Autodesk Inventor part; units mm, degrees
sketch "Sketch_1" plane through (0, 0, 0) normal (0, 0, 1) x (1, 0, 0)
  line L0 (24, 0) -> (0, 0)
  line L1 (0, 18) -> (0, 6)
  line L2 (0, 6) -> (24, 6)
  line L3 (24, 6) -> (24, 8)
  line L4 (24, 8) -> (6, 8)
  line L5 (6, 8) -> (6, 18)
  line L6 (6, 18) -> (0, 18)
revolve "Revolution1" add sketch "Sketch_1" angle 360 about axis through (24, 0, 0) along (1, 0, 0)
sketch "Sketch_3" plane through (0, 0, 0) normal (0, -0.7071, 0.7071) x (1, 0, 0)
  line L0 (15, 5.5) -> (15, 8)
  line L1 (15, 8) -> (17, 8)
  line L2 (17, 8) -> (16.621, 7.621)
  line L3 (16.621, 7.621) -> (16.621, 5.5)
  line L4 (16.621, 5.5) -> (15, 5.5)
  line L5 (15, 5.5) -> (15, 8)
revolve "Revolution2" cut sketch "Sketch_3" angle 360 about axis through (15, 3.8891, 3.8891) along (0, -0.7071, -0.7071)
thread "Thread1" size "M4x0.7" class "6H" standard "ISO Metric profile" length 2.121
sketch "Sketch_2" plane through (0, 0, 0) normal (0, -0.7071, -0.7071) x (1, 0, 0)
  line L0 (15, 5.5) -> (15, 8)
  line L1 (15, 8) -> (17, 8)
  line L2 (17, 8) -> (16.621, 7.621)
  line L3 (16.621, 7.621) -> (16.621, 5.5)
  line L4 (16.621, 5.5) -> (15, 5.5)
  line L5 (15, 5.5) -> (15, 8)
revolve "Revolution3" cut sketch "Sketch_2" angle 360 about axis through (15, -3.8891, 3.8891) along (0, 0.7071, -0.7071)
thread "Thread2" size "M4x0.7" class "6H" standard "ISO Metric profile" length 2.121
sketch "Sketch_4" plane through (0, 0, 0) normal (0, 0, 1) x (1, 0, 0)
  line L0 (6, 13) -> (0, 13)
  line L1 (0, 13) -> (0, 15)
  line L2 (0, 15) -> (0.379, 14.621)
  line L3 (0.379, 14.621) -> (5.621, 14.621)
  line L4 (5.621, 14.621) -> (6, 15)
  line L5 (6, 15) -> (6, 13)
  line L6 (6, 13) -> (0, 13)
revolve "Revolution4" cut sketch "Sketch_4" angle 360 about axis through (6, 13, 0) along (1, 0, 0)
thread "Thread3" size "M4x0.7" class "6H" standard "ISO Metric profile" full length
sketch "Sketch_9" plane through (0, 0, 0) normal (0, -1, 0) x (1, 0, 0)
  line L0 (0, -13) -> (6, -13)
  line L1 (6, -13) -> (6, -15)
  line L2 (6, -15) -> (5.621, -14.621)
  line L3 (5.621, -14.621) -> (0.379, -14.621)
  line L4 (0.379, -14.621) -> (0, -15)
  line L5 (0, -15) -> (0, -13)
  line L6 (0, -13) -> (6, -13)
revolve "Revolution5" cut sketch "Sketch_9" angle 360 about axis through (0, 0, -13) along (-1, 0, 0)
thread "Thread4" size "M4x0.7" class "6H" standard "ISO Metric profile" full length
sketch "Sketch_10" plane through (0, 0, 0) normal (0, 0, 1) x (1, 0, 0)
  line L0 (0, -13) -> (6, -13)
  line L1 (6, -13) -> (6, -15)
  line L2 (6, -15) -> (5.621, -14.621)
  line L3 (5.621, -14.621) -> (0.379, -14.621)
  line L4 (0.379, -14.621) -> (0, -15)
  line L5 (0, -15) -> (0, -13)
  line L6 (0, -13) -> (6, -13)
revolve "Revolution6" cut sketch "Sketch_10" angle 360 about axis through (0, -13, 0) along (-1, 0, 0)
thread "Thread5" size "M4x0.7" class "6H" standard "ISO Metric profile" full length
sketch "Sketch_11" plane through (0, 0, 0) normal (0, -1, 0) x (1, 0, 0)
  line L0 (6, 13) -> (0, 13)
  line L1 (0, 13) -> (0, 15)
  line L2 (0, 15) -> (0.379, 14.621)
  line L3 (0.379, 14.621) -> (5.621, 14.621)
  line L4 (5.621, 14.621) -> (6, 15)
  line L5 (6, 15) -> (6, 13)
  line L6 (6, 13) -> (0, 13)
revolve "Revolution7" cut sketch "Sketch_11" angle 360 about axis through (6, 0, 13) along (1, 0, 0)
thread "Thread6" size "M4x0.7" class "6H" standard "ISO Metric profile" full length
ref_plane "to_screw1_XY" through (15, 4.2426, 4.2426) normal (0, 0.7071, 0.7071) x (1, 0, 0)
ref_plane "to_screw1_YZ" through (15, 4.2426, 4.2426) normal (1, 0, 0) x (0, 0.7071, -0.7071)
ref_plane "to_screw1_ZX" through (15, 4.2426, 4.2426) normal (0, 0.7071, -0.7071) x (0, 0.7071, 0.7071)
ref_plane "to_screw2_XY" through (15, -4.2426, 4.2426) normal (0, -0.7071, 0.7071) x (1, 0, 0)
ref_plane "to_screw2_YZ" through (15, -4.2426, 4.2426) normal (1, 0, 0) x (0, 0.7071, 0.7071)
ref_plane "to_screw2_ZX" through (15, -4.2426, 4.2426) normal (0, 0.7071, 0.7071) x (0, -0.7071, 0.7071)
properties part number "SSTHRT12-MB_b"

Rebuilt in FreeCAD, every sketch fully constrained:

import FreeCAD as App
import Part
import Sketcher

V = App.Vector
Q = App.Units.Quantity


def add_polygon(sketch, points):
    """Adds a closed chain of lines whose ends are joined by coincident constraints."""
    first, n = sketch.GeometryCount, len(points)
    for a, b in zip(points, points[1:] + points[:1]):
        sketch.addGeometry(Part.LineSegment(App.Vector(*a, 0), App.Vector(*b, 0)), False)
    for i in range(n):
        sketch.addConstraint(Sketcher.Constraint("Coincident", first + i, 2, first + (i + 1) % n, 1))

doc = App.newDocument("Part")
body = doc.addObject("PartDesign::Body", "Body")

# Sketch on XY plane
sketch1 = body.newObject("Sketcher::SketchObject", "Sketch")
sketch1.AttachmentSupport = (doc.getObject("XY_Plane"), [""])
sketch1.MapMode = "FlatFace"
add_polygon(sketch1, [(6, 18), (0, 18), (0, 6), (24, 6), (24, 8), (6, 8)])  # lines 0-5
sketch1.addConstraint([
    Sketcher.Constraint("Horizontal", 0),
    Sketcher.Constraint("Vertical", 1),
    Sketcher.Constraint("Horizontal", 2),
    Sketcher.Constraint("Vertical", 3),
    Sketcher.Constraint("Horizontal", 4),
    Sketcher.Constraint("Vertical", 5),
    Sketcher.Constraint("PointOnObject", 0, 2, -2),
    Sketcher.Constraint("DistanceX", 0, 2, 0, 1, 6.0),
    Sketcher.Constraint("DistanceX", 2, 1, 2, 2, 24.0),
    Sketcher.Constraint("DistanceY", 1, 2, 1, 1, 12.0),
    Sketcher.Constraint("DistanceY", 3, 1, 3, 2, 2.0),
    Sketcher.Constraint("DistanceY", -1, 1, 0, 2, 18.0),
])
revolution = body.newObject("PartDesign::Revolution", "Revolution")
revolution.Profile = sketch1
revolution.ReferenceAxis = (sketch1, ["H_Axis"])
revolution.Angle = 360

# Sketch on an angled plane
sketch2 = body.newObject("Sketcher::SketchObject", "Sketch001")
sketch2.Placement = App.Placement(V(0, 0, 0), App.Rotation(V(1, 0, 0), V(0, 0.707106781, 0.707106781), V(0, -0.707106781, 0.707106781), "ZXY"))
add_polygon(sketch2, [(15, 8), (15, 5.5), (16.621, 5.5), (16.621, 7.621), (17, 8)])  # lines 0-4
sketch2.addGeometry(Part.LineSegment(V(15, 8, 0), V(15, 5.5, 0)), True)  # axis
sketch2.addConstraint([
    Sketcher.Constraint("Vertical", 0),
    Sketcher.Constraint("Horizontal", 1),
    Sketcher.Constraint("Vertical", 2),
    Sketcher.Constraint("Horizontal", 4),
    Sketcher.Constraint("Vertical", 5),
    Sketcher.Constraint("Coincident", 5, 1, 4, 2),
    Sketcher.Constraint("Horizontal", 1, 2, 5, 2),
    Sketcher.Constraint("DistanceX", 4, 2, 4, 1, 2.0),
    Sketcher.Constraint("Angle", 3, Q("45 deg")),
    Sketcher.Constraint("DistanceY", 0, 2, 0, 1, 2.5),
    Sketcher.Constraint("DistanceX", -1, 1, 0, 2, 15.0),
    Sketcher.Constraint("DistanceY", -1, 1, 3, 2, 8.0),
    Sketcher.Constraint("DistanceX", 1, 1, 1, 2, 1.621),
])
groove = body.newObject("PartDesign::Groove", "Groove")
groove.Profile = sketch2
groove.ReferenceAxis = (sketch2, ["Axis0"])
groove.Angle = 360

# Sketch on an angled plane
sketch3 = body.newObject("Sketcher::SketchObject", "Sketch002")
sketch3.Placement = App.Placement(V(0, 0, 0), App.Rotation(V(1, 0, 0), V(0, -0.707106781, 0.707106781), V(0, -0.707106781, -0.707106781), "ZXY"))
add_polygon(sketch3, [(15, 8), (15, 5.5), (16.621, 5.5), (16.621, 7.621), (17, 8)])  # lines 0-4
sketch3.addGeometry(Part.LineSegment(V(15, 8, 0), V(15, 5.5, 0)), True)  # axis
sketch3.addConstraint([
    Sketcher.Constraint("Vertical", 0),
    Sketcher.Constraint("Horizontal", 1),
    Sketcher.Constraint("Vertical", 2),
    Sketcher.Constraint("Horizontal", 4),
    Sketcher.Constraint("Vertical", 5),
    Sketcher.Constraint("Coincident", 5, 1, 4, 2),
    Sketcher.Constraint("Horizontal", 1, 2, 5, 2),
    Sketcher.Constraint("DistanceX", 4, 2, 4, 1, 2.0),
    Sketcher.Constraint("Angle", 3, Q("45 deg")),
    Sketcher.Constraint("DistanceY", 0, 2, 0, 1, 2.5),
    Sketcher.Constraint("DistanceX", -1, 1, 0, 2, 15.0),
    Sketcher.Constraint("DistanceY", -1, 1, 3, 2, 8.0),
    Sketcher.Constraint("DistanceX", 1, 1, 1, 2, 1.621),
])
groove2 = body.newObject("PartDesign::Groove", "Groove001")
groove2.Profile = sketch3
groove2.ReferenceAxis = (sketch3, ["Axis0"])
groove2.Angle = 360

# Sketch on XY plane
sketch4 = body.newObject("Sketcher::SketchObject", "Sketch003")
sketch4.AttachmentSupport = (doc.getObject("XY_Plane"), [""])
sketch4.MapMode = "FlatFace"
add_polygon(sketch4, [(0, 13), (6, 13), (6, 15), (5.621, 14.621), (0.379, 14.621), (0, 15)])  # lines 0-5
sketch4.addGeometry(Part.LineSegment(V(0, 13, 0), V(6, 13, 0)), True)  # axis
sketch4.addConstraint([
    Sketcher.Constraint("Horizontal", 0),
    Sketcher.Constraint("Vertical", 1),
    Sketcher.Constraint("Horizontal", 3),
    Sketcher.Constraint("Vertical", 5),
    Sketcher.Constraint("Horizontal", 6),
    Sketcher.Constraint("Coincident", 6, 1, 5, 2),
    Sketcher.Constraint("PointOnObject", 4, 2, -2),
    Sketcher.Constraint("Perpendicular", 2, 4),
    Sketcher.Constraint("Horizontal", 1, 2, 4, 2),
    Sketcher.Constraint("Vertical", 1, 2, 6, 2),
    Sketcher.Constraint("Equal", 2, 4),
    Sketcher.Constraint("DistanceX", 0, 1, 0, 2, 6.0),
    Sketcher.Constraint("DistanceY", 1, 1, 1, 2, 2.0),
    Sketcher.Constraint("DistanceY", -1, 1, 0, 2, 13.0),
    Sketcher.Constraint("DistanceX", 3, 2, 3, 1, 5.242),
])
groove3 = body.newObject("PartDesign::Groove", "Groove002")
groove3.Profile = sketch4
groove3.ReferenceAxis = (sketch4, ["Axis0"])
groove3.Angle = 360

# Sketch on XZ plane
sketch5 = body.newObject("Sketcher::SketchObject", "Sketch004")
sketch5.AttachmentSupport = (doc.getObject("XZ_Plane"), [""])
sketch5.MapMode = "FlatFace"
add_polygon(sketch5, [(6, -13), (0, -13), (0, -15), (0.379, -14.621), (5.621, -14.621), (6, -15)])  # lines 0-5
sketch5.addGeometry(Part.LineSegment(V(6, -13, 0), V(0, -13, 0)), True)  # axis
sketch5.addConstraint([
    Sketcher.Constraint("Horizontal", 0),
    Sketcher.Constraint("Vertical", 1),
    Sketcher.Constraint("Horizontal", 3),
    Sketcher.Constraint("Vertical", 5),
    Sketcher.Constraint("Horizontal", 6),
    Sketcher.Constraint("Coincident", 6, 1, 5, 2),
    Sketcher.Constraint("PointOnObject", 0, 2, -2),
    Sketcher.Constraint("PointOnObject", 6, 2, -2),
    Sketcher.Constraint("Perpendicular", 2, 4),
    Sketcher.Constraint("Horizontal", 1, 2, 4, 2),
    Sketcher.Constraint("Equal", 2, 4),
    Sketcher.Constraint("DistanceX", 0, 2, 0, 1, 6.0),
    Sketcher.Constraint("DistanceY", 1, 2, 1, 1, 2.0),
    Sketcher.Constraint("DistanceY", 0, 2, -1, 1, 13.0),
    Sketcher.Constraint("DistanceX", 3, 1, 3, 2, 5.242),
])
groove4 = body.newObject("PartDesign::Groove", "Groove003")
groove4.Profile = sketch5
groove4.ReferenceAxis = (sketch5, ["Axis0"])
groove4.Angle = 360

# Sketch on XY plane
sketch6 = body.newObject("Sketcher::SketchObject", "Sketch005")
sketch6.AttachmentSupport = (doc.getObject("XY_Plane"), [""])
sketch6.MapMode = "FlatFace"
add_polygon(sketch6, [(6, -13), (0, -13), (0, -15), (0.379, -14.621), (5.621, -14.621), (6, -15)])  # lines 0-5
sketch6.addGeometry(Part.LineSegment(V(6, -13, 0), V(0, -13, 0)), True)  # axis
sketch6.addConstraint([
    Sketcher.Constraint("Horizontal", 0),
    Sketcher.Constraint("Vertical", 1),
    Sketcher.Constraint("Horizontal", 3),
    Sketcher.Constraint("Vertical", 5),
    Sketcher.Constraint("Horizontal", 6),
    Sketcher.Constraint("Coincident", 6, 1, 5, 2),
    Sketcher.Constraint("PointOnObject", 0, 2, -2),
    Sketcher.Constraint("PointOnObject", 6, 2, -2),
    Sketcher.Constraint("Perpendicular", 2, 4),
    Sketcher.Constraint("Horizontal", 1, 2, 4, 2),
    Sketcher.Constraint("Equal", 2, 4),
    Sketcher.Constraint("DistanceX", 0, 2, 0, 1, 6.0),
    Sketcher.Constraint("DistanceY", 1, 2, 1, 1, 2.0),
    Sketcher.Constraint("DistanceY", 0, 2, -1, 1, 13.0),
    Sketcher.Constraint("DistanceX", 3, 1, 3, 2, 5.242),
])
groove5 = body.newObject("PartDesign::Groove", "Groove004")
groove5.Profile = sketch6
groove5.ReferenceAxis = (sketch6, ["Axis0"])
groove5.Angle = 360

# Sketch on XZ plane
sketch7 = body.newObject("Sketcher::SketchObject", "Sketch006")
sketch7.AttachmentSupport = (doc.getObject("XZ_Plane"), [""])
sketch7.MapMode = "FlatFace"
add_polygon(sketch7, [(0, 13), (6, 13), (6, 15), (5.621, 14.621), (0.379, 14.621), (0, 15)])  # lines 0-5
sketch7.addGeometry(Part.LineSegment(V(0, 13, 0), V(6, 13, 0)), True)  # axis
sketch7.addConstraint([
    Sketcher.Constraint("Horizontal", 0),
    Sketcher.Constraint("Vertical", 1),
    Sketcher.Constraint("Horizontal", 3),
    Sketcher.Constraint("Vertical", 5),
    Sketcher.Constraint("Horizontal", 6),
    Sketcher.Constraint("Coincident", 6, 1, 5, 2),
    Sketcher.Constraint("PointOnObject", 4, 2, -2),
    Sketcher.Constraint("Perpendicular", 2, 4),
    Sketcher.Constraint("Horizontal", 1, 2, 4, 2),
    Sketcher.Constraint("Vertical", 1, 2, 6, 2),
    Sketcher.Constraint("Equal", 2, 4),
    Sketcher.Constraint("DistanceX", 0, 1, 0, 2, 6.0),
    Sketcher.Constraint("DistanceY", 1, 1, 1, 2, 2.0),
    Sketcher.Constraint("DistanceY", -1, 1, 0, 2, 13.0),
    Sketcher.Constraint("DistanceX", 3, 2, 3, 1, 5.242),
])
groove6 = body.newObject("PartDesign::Groove", "Groove005")
groove6.Profile = sketch7
groove6.ReferenceAxis = (sketch7, ["Axis0"])
groove6.Angle = 360

doc.recompute()
